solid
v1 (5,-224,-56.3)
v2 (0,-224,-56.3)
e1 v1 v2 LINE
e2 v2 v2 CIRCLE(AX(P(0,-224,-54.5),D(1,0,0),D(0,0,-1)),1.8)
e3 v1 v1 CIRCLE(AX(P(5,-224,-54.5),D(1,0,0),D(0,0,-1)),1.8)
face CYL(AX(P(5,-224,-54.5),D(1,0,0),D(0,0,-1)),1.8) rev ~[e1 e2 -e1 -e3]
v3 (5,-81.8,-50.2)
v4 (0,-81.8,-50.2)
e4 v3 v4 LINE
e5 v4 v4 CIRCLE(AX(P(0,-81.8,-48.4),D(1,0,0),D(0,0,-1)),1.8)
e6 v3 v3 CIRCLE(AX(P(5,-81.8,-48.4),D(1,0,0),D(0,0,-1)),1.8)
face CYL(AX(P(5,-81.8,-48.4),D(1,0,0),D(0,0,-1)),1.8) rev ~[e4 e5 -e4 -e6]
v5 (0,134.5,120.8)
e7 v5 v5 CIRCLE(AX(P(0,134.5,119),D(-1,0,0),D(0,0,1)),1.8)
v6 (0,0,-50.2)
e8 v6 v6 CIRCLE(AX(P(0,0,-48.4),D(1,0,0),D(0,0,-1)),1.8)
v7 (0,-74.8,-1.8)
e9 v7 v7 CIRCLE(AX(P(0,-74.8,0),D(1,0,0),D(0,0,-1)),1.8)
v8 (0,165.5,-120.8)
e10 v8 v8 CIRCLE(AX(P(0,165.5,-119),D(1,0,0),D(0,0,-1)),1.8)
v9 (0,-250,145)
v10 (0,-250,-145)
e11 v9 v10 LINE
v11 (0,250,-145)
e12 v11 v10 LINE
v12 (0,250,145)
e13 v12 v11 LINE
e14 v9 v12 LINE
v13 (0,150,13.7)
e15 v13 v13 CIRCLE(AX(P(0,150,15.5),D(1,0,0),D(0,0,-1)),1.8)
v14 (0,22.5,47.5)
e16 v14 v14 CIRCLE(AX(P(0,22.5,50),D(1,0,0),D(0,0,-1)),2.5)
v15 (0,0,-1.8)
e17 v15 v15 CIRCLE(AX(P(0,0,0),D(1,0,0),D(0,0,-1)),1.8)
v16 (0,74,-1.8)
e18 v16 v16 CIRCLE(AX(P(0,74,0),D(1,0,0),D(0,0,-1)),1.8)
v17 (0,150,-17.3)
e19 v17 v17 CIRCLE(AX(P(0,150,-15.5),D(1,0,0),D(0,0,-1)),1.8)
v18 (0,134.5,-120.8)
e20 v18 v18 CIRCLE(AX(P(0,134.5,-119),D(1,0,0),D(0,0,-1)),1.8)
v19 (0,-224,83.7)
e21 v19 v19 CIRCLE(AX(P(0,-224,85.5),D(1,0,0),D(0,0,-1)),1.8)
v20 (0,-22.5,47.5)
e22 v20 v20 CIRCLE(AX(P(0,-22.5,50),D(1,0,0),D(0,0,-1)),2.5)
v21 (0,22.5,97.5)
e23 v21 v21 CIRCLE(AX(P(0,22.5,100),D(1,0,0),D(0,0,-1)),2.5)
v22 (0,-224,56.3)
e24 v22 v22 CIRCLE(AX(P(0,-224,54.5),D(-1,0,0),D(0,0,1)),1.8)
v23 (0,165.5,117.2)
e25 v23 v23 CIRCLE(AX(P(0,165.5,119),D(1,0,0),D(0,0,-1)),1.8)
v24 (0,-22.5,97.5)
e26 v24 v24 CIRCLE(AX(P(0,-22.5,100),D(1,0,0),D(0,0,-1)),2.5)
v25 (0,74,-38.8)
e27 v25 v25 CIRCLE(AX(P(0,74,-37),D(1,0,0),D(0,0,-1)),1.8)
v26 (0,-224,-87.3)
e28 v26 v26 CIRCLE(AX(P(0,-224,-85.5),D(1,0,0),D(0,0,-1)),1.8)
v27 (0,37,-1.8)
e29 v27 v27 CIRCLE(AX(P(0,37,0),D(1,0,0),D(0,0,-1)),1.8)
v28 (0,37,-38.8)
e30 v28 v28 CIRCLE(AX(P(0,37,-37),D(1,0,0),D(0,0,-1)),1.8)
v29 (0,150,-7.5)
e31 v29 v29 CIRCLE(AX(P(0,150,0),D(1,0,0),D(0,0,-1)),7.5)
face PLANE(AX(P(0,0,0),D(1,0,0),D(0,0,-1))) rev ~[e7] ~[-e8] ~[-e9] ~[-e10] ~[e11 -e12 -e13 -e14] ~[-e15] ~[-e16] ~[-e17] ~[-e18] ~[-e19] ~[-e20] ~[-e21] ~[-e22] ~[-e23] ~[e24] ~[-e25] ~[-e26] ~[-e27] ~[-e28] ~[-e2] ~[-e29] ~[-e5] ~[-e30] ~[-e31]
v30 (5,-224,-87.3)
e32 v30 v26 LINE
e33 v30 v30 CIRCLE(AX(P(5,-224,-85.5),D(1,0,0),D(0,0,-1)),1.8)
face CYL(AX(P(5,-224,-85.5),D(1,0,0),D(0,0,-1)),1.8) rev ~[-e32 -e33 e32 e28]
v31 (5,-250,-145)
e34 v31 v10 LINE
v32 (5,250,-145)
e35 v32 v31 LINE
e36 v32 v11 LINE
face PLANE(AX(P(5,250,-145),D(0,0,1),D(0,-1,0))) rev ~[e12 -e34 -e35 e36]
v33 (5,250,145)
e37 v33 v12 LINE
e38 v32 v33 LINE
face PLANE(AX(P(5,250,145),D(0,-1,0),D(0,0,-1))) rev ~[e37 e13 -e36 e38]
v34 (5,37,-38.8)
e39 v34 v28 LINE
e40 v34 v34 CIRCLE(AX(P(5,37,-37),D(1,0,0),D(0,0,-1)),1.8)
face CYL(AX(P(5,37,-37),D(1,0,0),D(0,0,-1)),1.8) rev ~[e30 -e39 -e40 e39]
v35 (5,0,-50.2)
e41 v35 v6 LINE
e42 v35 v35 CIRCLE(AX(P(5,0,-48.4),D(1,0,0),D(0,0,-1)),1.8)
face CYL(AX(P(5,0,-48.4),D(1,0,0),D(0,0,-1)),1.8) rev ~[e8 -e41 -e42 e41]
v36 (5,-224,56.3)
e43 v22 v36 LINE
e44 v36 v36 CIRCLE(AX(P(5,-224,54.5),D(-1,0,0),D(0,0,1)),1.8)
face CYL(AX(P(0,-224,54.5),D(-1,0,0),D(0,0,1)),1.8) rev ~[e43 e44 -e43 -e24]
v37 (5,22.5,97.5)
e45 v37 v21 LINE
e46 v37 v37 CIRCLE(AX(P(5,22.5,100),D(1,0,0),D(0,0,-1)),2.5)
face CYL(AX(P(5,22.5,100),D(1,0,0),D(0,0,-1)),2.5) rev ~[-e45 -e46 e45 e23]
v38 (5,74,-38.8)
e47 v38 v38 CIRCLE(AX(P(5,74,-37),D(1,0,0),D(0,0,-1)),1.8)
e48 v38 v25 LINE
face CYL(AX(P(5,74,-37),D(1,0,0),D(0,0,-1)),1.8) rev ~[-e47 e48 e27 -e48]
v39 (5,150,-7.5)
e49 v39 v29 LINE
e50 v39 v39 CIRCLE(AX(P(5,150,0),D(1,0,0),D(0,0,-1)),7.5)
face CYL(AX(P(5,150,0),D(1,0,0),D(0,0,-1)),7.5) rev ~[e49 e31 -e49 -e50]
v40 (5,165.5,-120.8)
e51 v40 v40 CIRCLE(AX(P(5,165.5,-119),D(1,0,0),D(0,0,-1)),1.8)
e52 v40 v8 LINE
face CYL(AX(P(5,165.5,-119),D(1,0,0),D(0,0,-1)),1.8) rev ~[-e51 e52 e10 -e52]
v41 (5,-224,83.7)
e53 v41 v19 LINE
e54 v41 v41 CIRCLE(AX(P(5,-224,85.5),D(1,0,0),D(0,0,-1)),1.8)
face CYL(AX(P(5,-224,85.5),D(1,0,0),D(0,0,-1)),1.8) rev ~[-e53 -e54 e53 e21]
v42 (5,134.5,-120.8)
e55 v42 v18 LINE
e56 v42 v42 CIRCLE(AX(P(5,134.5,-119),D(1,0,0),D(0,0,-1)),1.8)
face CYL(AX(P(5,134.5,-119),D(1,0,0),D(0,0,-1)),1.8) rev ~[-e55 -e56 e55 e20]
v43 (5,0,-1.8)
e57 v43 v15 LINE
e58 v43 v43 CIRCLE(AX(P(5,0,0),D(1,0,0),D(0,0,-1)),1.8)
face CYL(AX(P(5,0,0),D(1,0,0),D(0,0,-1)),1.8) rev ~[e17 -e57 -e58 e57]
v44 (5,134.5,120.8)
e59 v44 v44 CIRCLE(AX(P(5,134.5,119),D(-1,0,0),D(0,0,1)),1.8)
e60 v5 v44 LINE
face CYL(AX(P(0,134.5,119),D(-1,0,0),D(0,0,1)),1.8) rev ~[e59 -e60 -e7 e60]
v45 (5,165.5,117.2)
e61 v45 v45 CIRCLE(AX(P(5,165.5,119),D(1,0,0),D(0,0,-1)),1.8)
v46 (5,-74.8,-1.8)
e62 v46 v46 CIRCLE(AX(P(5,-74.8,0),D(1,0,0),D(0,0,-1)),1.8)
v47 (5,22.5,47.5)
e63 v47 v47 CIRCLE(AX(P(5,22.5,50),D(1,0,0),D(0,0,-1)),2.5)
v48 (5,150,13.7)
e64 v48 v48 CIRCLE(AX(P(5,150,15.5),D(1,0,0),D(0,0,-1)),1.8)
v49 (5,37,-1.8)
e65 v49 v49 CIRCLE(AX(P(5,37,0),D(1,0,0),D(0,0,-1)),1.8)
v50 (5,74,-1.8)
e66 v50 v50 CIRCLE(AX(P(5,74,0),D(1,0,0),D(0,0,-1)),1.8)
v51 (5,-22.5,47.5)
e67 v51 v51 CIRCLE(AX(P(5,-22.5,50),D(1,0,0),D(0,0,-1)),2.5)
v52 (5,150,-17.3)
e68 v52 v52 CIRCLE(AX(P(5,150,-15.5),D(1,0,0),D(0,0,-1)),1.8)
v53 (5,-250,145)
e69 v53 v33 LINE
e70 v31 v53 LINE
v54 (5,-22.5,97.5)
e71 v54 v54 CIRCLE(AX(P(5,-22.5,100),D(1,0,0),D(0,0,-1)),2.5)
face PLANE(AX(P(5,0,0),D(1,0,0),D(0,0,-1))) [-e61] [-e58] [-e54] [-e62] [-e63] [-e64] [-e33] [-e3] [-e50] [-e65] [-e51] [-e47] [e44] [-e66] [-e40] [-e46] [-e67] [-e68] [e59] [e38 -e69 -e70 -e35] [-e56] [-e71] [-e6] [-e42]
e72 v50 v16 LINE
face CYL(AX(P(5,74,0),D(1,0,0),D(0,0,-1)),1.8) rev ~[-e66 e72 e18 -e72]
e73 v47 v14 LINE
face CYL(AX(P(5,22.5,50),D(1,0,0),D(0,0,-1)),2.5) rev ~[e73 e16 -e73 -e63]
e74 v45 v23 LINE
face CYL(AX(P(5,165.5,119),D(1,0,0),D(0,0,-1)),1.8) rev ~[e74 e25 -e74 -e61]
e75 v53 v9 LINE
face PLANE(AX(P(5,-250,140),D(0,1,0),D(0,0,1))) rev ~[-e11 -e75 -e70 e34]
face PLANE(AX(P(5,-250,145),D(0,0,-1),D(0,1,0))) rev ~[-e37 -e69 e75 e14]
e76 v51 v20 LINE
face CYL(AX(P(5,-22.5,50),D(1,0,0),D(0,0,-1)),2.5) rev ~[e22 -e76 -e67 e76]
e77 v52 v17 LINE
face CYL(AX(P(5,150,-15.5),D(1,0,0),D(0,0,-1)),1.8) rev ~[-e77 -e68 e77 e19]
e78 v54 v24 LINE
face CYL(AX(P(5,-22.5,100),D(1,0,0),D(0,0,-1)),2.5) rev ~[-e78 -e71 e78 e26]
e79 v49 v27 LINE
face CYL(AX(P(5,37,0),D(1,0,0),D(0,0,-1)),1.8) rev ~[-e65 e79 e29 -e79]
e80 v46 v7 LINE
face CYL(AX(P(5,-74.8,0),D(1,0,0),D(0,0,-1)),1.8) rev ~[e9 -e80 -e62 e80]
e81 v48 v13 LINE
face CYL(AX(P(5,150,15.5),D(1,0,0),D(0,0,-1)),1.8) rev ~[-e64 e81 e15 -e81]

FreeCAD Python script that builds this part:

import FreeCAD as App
import Part
import Sketcher

V = App.Vector
Q = App.Units.Quantity

doc = App.newDocument("Part")
params = doc.addObject("Spreadsheet::Sheet", "Params")
for row, (alias, value) in enumerate([
    ("sketch1_width", "500 mm"),
    ("sketch1_height", "290 mm"),
    ("pad1_length", "5 mm"),
    ("sketch2_diameter", "3.6 mm"),
    ("sketch3_diameter", "3.6 mm"),
    ("sketch4_diameter", "3.6 mm"),
    ("sketch5_diameter", "3.6 mm"),
    ("sketch6_diameter", "3.6 mm"),
    ("sketch7_diameter", "3.6 mm"),
    ("sketch8_diameter", "3.6 mm"),
    ("sketch9_diameter", "3.6 mm"),
    ("sketch10_width", "500 mm"),
    ("sketch10_height", "5 mm"),
    ("sketch11_width", "500 mm"),
    ("sketch11_height", "5 mm"),
    ("pad2_length", "5 mm"),
    ("sketch12_diameter", "3.6 mm"),
    ("sketch13_diameter", "3.6 mm"),
    ("sketch14_diameter", "3.6 mm"),
    ("sketch15_diameter", "3.6 mm"),
    ("sketch16_diameter", "3.6 mm"),
    ("sketch17_diameter", "3.6 mm"),
    ("sketch18_diameter", "3.6 mm"),
    ("sketch19_diameter", "3.6 mm"),
    ("sketch20_diameter", "5 mm"),
    ("sketch21_diameter", "5 mm"),
    ("sketch22_diameter", "5 mm"),
    ("sketch23_diameter", "5 mm"),
    ("sketch24_diameter", "3.6 mm"),
    ("sketch25_diameter", "3.6 mm"),
    ("sketch26_diameter", "15 mm"),
], start=1):
    params.set(f"A{row}", alias)
    params.set(f"B{row}", "=" + value)
    params.setAlias(f"B{row}", alias)

body = doc.addObject("PartDesign::Body", "Body")

# Sketch on YZ plane
sketch1 = doc.addObject("Sketcher::SketchObject", "Sketch")
body.addObject(sketch1)
sketch1.AttachmentSupport = (doc.YZ_Plane, [""])
sketch1.MapMode = "FlatFace"
sketch1.addGeometry([
    Part.LineSegment(V(250, -150, 0), V(250, 140, 0)),
    Part.LineSegment(V(250, 140, 0), V(-250, 140, 0)),
    Part.LineSegment(V(-250, 140, 0), V(-250, -150, 0)),
    Part.LineSegment(V(-250, -150, 0), V(250, -150, 0)),
], False)
sketch1.addConstraint([
    Sketcher.Constraint("Coincident", 0, 2, 1, 1),
    Sketcher.Constraint("Coincident", 1, 2, 2, 1),
    Sketcher.Constraint("Coincident", 2, 2, 3, 1),
    Sketcher.Constraint("Coincident", 3, 2, 0, 1),
    Sketcher.Constraint("Vertical", 0),
    Sketcher.Constraint("Horizontal", 1),
    Sketcher.Constraint("Vertical", 2),
    Sketcher.Constraint("Horizontal", 3),
    Sketcher.Constraint("DistanceX", 1, 2, 1, 1, Q("500 mm")),
    Sketcher.Constraint("DistanceY", 0, 1, 0, 2, Q("290 mm")),
    Sketcher.Constraint("DistanceX", -1, 1, 0, 2, Q("250 mm")),
    Sketcher.Constraint("DistanceY", -1, 1, 0, 2, Q("140 mm")),
])
sketch1.setExpression("Constraints[8]", "Params.sketch1_width")
sketch1.setExpression("Constraints[9]", "Params.sketch1_height")
pad1 = doc.addObject("PartDesign::Pad", "Pad")
body.addObject(pad1)
pad1.Profile = sketch1
pad1.setExpression("Length", "Params.pad1_length")

# Sketch on YZ plane
sketch2 = doc.addObject("Sketcher::SketchObject", "Sketch001")
body.addObject(sketch2)
sketch2.AttachmentSupport = (doc.YZ_Plane, [""])
sketch2.MapMode = "FlatFace"
sketch2.AttachmentOffset = App.Placement(V(0, 0, 5), App.Rotation())
sketch2.addGeometry(Part.Circle(V(-224, -85.5, 0), V(0, 0, 1), 1.8), False)
sketch2.addConstraint([
    Sketcher.Constraint("Diameter", 0, Q("3.6 mm")),
    Sketcher.Constraint("DistanceX", 0, 3, -1, 1, Q("224 mm")),
    Sketcher.Constraint("DistanceY", 0, 3, -1, 1, Q("85.5 mm")),
])
sketch2.setExpression("Constraints[0]", "Params.sketch2_diameter")
pocket1 = doc.addObject("PartDesign::Pocket", "Pocket")
body.addObject(pocket1)
pocket1.Profile = sketch2
pocket1.Type = "ThroughAll"

# Sketch on YZ plane
sketch3 = doc.addObject("Sketcher::SketchObject", "Sketch002")
body.addObject(sketch3)
sketch3.AttachmentSupport = (doc.YZ_Plane, [""])
sketch3.MapMode = "FlatFace"
sketch3.AttachmentOffset = App.Placement(V(0, 0, 5), App.Rotation())
sketch3.addGeometry(Part.Circle(V(-224, 85.5, 0), V(0, 0, 1), 1.8), False)
sketch3.addConstraint([
    Sketcher.Constraint("Diameter", 0, Q("3.6 mm")),
    Sketcher.Constraint("DistanceX", 0, 3, -1, 1, Q("224 mm")),
    Sketcher.Constraint("DistanceY", -1, 1, 0, 3, Q("85.5 mm")),
])
sketch3.setExpression("Constraints[0]", "Params.sketch3_diameter")
pocket2 = doc.addObject("PartDesign::Pocket", "Pocket001")
body.addObject(pocket2)
pocket2.Profile = sketch3
pocket2.Type = "ThroughAll"

# Sketch on YZ plane
sketch4 = doc.addObject("Sketcher::SketchObject", "Sketch003")
body.addObject(sketch4)
sketch4.AttachmentSupport = (doc.YZ_Plane, [""])
sketch4.MapMode = "FlatFace"
sketch4.addGeometry(Part.Circle(V(-224, 54.5, 0), V(0, 0, 1), 1.8), False)
sketch4.addConstraint([
    Sketcher.Constraint("Diameter", 0, Q("3.6 mm")),
    Sketcher.Constraint("DistanceX", 0, 3, -1, 1, Q("224 mm")),
    Sketcher.Constraint("DistanceY", -1, 1, 0, 3, Q("54.5 mm")),
])
sketch4.setExpression("Constraints[0]", "Params.sketch4_diameter")
pocket3 = doc.addObject("PartDesign::Pocket", "Pocket002")
body.addObject(pocket3)
pocket3.Profile = sketch4
pocket3.Type = "ThroughAll"
pocket3.Reversed = True

# Sketch on YZ plane
sketch5 = doc.addObject("Sketcher::SketchObject", "Sketch004")
body.addObject(sketch5)
sketch5.AttachmentSupport = (doc.YZ_Plane, [""])
sketch5.MapMode = "FlatFace"
sketch5.AttachmentOffset = App.Placement(V(0, 0, 5), App.Rotation())
sketch5.addGeometry(Part.Circle(V(-224, -54.5, 0), V(0, 0, 1), 1.8), False)
sketch5.addConstraint([
    Sketcher.Constraint("Diameter", 0, Q("3.6 mm")),
    Sketcher.Constraint("DistanceX", 0, 3, -1, 1, Q("224 mm")),
    Sketcher.Constraint("DistanceY", 0, 3, -1, 1, Q("54.5 mm")),
])
sketch5.setExpression("Constraints[0]", "Params.sketch5_diameter")
pocket4 = doc.addObject("PartDesign::Pocket", "Pocket003")
body.addObject(pocket4)
pocket4.Profile = sketch5
pocket4.Type = "ThroughAll"

# Sketch on YZ plane
sketch6 = doc.addObject("Sketcher::SketchObject", "Sketch005")
body.addObject(sketch6)
sketch6.AttachmentSupport = (doc.YZ_Plane, [""])
sketch6.MapMode = "FlatFace"
sketch6.AttachmentOffset = App.Placement(V(0, 0, 5), App.Rotation())
sketch6.addGeometry(Part.Circle(V(165.5, 119, 0), V(0, 0, 1), 1.8), False)
sketch6.addConstraint([
    Sketcher.Constraint("Diameter", 0, Q("3.6 mm")),
    Sketcher.Constraint("DistanceY", -1, 1, 0, 3, Q("119 mm")),
    Sketcher.Constraint("DistanceX", -1, 1, 0, 3, Q("165.5 mm")),
])
sketch6.setExpression("Constraints[0]", "Params.sketch6_diameter")
pocket5 = doc.addObject("PartDesign::Pocket", "Pocket004")
body.addObject(pocket5)
pocket5.Profile = sketch6
pocket5.Type = "ThroughAll"

# Sketch on YZ plane
sketch7 = doc.addObject("Sketcher::SketchObject", "Sketch006")
body.addObject(sketch7)
sketch7.AttachmentSupport = (doc.YZ_Plane, [""])
sketch7.MapMode = "FlatFace"
sketch7.addGeometry(Part.Circle(V(134.5, 119, 0), V(0, 0, 1), 1.8), False)
sketch7.addConstraint([
    Sketcher.Constraint("Diameter", 0, Q("3.6 mm")),
    Sketcher.Constraint("DistanceY", -1, 1, 0, 3, Q("119 mm")),
    Sketcher.Constraint("DistanceX", -1, 1, 0, 3, Q("134.5 mm")),
])
sketch7.setExpression("Constraints[0]", "Params.sketch7_diameter")
pocket6 = doc.addObject("PartDesign::Pocket", "Pocket005")
body.addObject(pocket6)
pocket6.Profile = sketch7
pocket6.Type = "ThroughAll"
pocket6.Reversed = True

# Sketch on YZ plane
sketch8 = doc.addObject("Sketcher::SketchObject", "Sketch007")
body.addObject(sketch8)
sketch8.AttachmentSupport = (doc.YZ_Plane, [""])
sketch8.MapMode = "FlatFace"
sketch8.AttachmentOffset = App.Placement(V(0, 0, 5), App.Rotation())
sketch8.addGeometry(Part.Circle(V(134.5, -119, 0), V(0, 0, 1), 1.8), False)
sketch8.addConstraint([
    Sketcher.Constraint("Diameter", 0, Q("3.6 mm")),
    Sketcher.Constraint("DistanceY", 0, 3, -1, 1, Q("119 mm")),
    Sketcher.Constraint("DistanceX", -1, 1, 0, 3, Q("134.5 mm")),
])
sketch8.setExpression("Constraints[0]", "Params.sketch8_diameter")
pocket7 = doc.addObject("PartDesign::Pocket", "Pocket006")
body.addObject(pocket7)
pocket7.Profile = sketch8
pocket7.Type = "ThroughAll"

# Sketch on YZ plane
sketch9 = doc.addObject("Sketcher::SketchObject", "Sketch008")
body.addObject(sketch9)
sketch9.AttachmentSupport = (doc.YZ_Plane, [""])
sketch9.MapMode = "FlatFace"
sketch9.AttachmentOffset = App.Placement(V(0, 0, 5), App.Rotation())
sketch9.addGeometry(Part.Circle(V(165.5, -119, 0), V(0, 0, 1), 1.8), False)
sketch9.addConstraint([
    Sketcher.Constraint("Diameter", 0, Q("3.6 mm")),
    Sketcher.Constraint("DistanceY", 0, 3, -1, 1, Q("119 mm")),
    Sketcher.Constraint("DistanceX", -1, 1, 0, 3, Q("165.5 mm")),
])
sketch9.setExpression("Constraints[0]", "Params.sketch9_diameter")
pocket8 = doc.addObject("PartDesign::Pocket", "Pocket007")
body.addObject(pocket8)
pocket8.Profile = sketch9
pocket8.Type = "ThroughAll"

# Sketch on YZ plane
sketch10 = doc.addObject("Sketcher::SketchObject", "Sketch009")
body.addObject(sketch10)
sketch10.AttachmentSupport = (doc.YZ_Plane, [""])
sketch10.MapMode = "FlatFace"
sketch10.AttachmentOffset = App.Placement(V(0, 0, 5), App.Rotation())
sketch10.addGeometry([
    Part.LineSegment(V(250, -145, 0), V(-250, -145, 0)),
    Part.LineSegment(V(-250, -145, 0), V(-250, -150, 0)),
    Part.LineSegment(V(-250, -150, 0), V(250, -150, 0)),
    Part.LineSegment(V(250, -150, 0), V(250, -145, 0)),
], False)
sketch10.addConstraint([
    Sketcher.Constraint("Coincident", 0, 2, 1, 1),
    Sketcher.Constraint("Coincident", 1, 2, 2, 1),
    Sketcher.Constraint("Coincident", 2, 2, 3, 1),
    Sketcher.Constraint("Coincident", 3, 2, 0, 1),
    Sketcher.Constraint("Horizontal", 0),
    Sketcher.Constraint("Vertical", 1),
    Sketcher.Constraint("Horizontal", 2),
    Sketcher.Constraint("Vertical", 3),
    Sketcher.Constraint("DistanceX", 0, 2, 0, 1, Q("500 mm")),
    Sketcher.Constraint("DistanceY", 1, 2, 1, 1, Q("5 mm")),
    Sketcher.Constraint("DistanceX", 0, 2, -1, 1, Q("250 mm")),
    Sketcher.Constraint("DistanceY", 0, 2, -1, 1, Q("145 mm")),
])
sketch10.setExpression("Constraints[8]", "Params.sketch10_width")
sketch10.setExpression("Constraints[9]", "Params.sketch10_height")
pocket9 = doc.addObject("PartDesign::Pocket", "Pocket008")
body.addObject(pocket9)
pocket9.Profile = sketch10
pocket9.Type = "ThroughAll"

# Sketch on YZ plane
sketch11 = doc.addObject("Sketcher::SketchObject", "Sketch010")
body.addObject(sketch11)
sketch11.AttachmentSupport = (doc.YZ_Plane, [""])
sketch11.MapMode = "FlatFace"
sketch11.AttachmentOffset = App.Placement(V(0, 0, 5), App.Rotation())
sketch11.addGeometry([
    Part.LineSegment(V(-250, 145, 0), V(-250, 140, 0)),
    Part.LineSegment(V(-250, 140, 0), V(250, 140, 0)),
    Part.LineSegment(V(250, 140, 0), V(250, 145, 0)),
    Part.LineSegment(V(250, 145, 0), V(-250, 145, 0)),
], False)
sketch11.addConstraint([
    Sketcher.Constraint("Coincident", 0, 2, 1, 1),
    Sketcher.Constraint("Coincident", 1, 2, 2, 1),
    Sketcher.Constraint("Coincident", 2, 2, 3, 1),
    Sketcher.Constraint("Coincident", 3, 2, 0, 1),
    Sketcher.Constraint("Vertical", 0),
    Sketcher.Constraint("Horizontal", 1),
    Sketcher.Constraint("Vertical", 2),
    Sketcher.Constraint("Horizontal", 3),
    Sketcher.Constraint("DistanceX", 1, 1, 1, 2, Q("500 mm")),
    Sketcher.Constraint("DistanceY", 0, 2, 0, 1, Q("5 mm")),
    Sketcher.Constraint("DistanceX", 0, 2, -1, 1, Q("250 mm")),
    Sketcher.Constraint("DistanceY", -1, 1, 0, 2, Q("140 mm")),
])
sketch11.setExpression("Constraints[8]", "Params.sketch11_width")
sketch11.setExpression("Constraints[9]", "Params.sketch11_height")
pad2 = doc.addObject("PartDesign::Pad", "Pad001")
body.addObject(pad2)
pad2.Profile = sketch11
pad2.setExpression("Length", "Params.pad2_length")
pad2.Reversed = True

# Sketch on YZ plane
sketch12 = doc.addObject("Sketcher::SketchObject", "Sketch011")
body.addObject(sketch12)
sketch12.AttachmentSupport = (doc.YZ_Plane, [""])
sketch12.MapMode = "FlatFace"
sketch12.AttachmentOffset = App.Placement(V(0, 0, 5), App.Rotation())
sketch12.addGeometry(Part.Circle(V(0, 0, 0), V(0, 0, 1), 1.8), False)
sketch12.addConstraint([
    Sketcher.Constraint("Coincident", 0, 3, -1, 1),
    Sketcher.Constraint("Diameter", 0, Q("3.6 mm")),
])
sketch12.setExpression("Constraints[1]", "Params.sketch12_diameter")
pocket10 = doc.addObject("PartDesign::Pocket", "Pocket009")
body.addObject(pocket10)
pocket10.Profile = sketch12
pocket10.Type = "ThroughAll"

# Sketch on YZ plane
sketch13 = doc.addObject("Sketcher::SketchObject", "Sketch012")
body.addObject(sketch13)
sketch13.AttachmentSupport = (doc.YZ_Plane, [""])
sketch13.MapMode = "FlatFace"
sketch13.AttachmentOffset = App.Placement(V(0, 0, 5), App.Rotation())
sketch13.addGeometry(Part.Circle(V(0, -48.4, 0), V(0, 0, 1), 1.8), False)
sketch13.addConstraint([
    Sketcher.Constraint("PointOnObject", 0, 3, -2),
    Sketcher.Constraint("Diameter", 0, Q("3.6 mm")),
    Sketcher.Constraint("DistanceY", 0, 3, -1, 1, Q("48.4 mm")),
])
sketch13.setExpression("Constraints[1]", "Params.sketch13_diameter")
pocket11 = doc.addObject("PartDesign::Pocket", "Pocket010")
body.addObject(pocket11)
pocket11.Profile = sketch13
pocket11.Type = "ThroughAll"

# Sketch on YZ plane
sketch14 = doc.addObject("Sketcher::SketchObject", "Sketch013")
body.addObject(sketch14)
sketch14.AttachmentSupport = (doc.YZ_Plane, [""])
sketch14.MapMode = "FlatFace"
sketch14.AttachmentOffset = App.Placement(V(0, 0, 5), App.Rotation())
sketch14.addGeometry(Part.Circle(V(-74.8, 0, 0), V(0, 0, 1), 1.8), False)
sketch14.addConstraint([
    Sketcher.Constraint("PointOnObject", 0, 3, -1),
    Sketcher.Constraint("Diameter", 0, Q("3.6 mm")),
    Sketcher.Constraint("DistanceX", 0, 3, -1, 1, Q("74.8 mm")),
])
sketch14.setExpression("Constraints[1]", "Params.sketch14_diameter")
pocket12 = doc.addObject("PartDesign::Pocket", "Pocket011")
body.addObject(pocket12)
pocket12.Profile = sketch14
pocket12.Type = "ThroughAll"

# Sketch on YZ plane
sketch15 = doc.addObject("Sketcher::SketchObject", "Sketch014")
body.addObject(sketch15)
sketch15.AttachmentSupport = (doc.YZ_Plane, [""])
sketch15.MapMode = "FlatFace"
sketch15.AttachmentOffset = App.Placement(V(0, 0, 5), App.Rotation())
sketch15.addGeometry(Part.Circle(V(-81.8, -48.4, 0), V(0, 0, 1), 1.8), False)
sketch15.addConstraint([
    Sketcher.Constraint("Diameter", 0, Q("3.6 mm")),
    Sketcher.Constraint("DistanceX", 0, 3, -1, 1, Q("81.8 mm")),
    Sketcher.Constraint("DistanceY", 0, 3, -1, 1, Q("48.4 mm")),
])
sketch15.setExpression("Constraints[0]", "Params.sketch15_diameter")
pocket13 = doc.addObject("PartDesign::Pocket", "Pocket012")
body.addObject(pocket13)
pocket13.Profile = sketch15
pocket13.Type = "ThroughAll"

# Sketch on YZ plane
sketch16 = doc.addObject("Sketcher::SketchObject", "Sketch015")
body.addObject(sketch16)
sketch16.AttachmentSupport = (doc.YZ_Plane, [""])
sketch16.MapMode = "FlatFace"
sketch16.AttachmentOffset = App.Placement(V(0, 0, 5), App.Rotation())
sketch16.addGeometry(Part.Circle(V(37, 0, 0), V(0, 0, 1), 1.8), False)
sketch16.addConstraint([
    Sketcher.Constraint("PointOnObject", 0, 3, -1),
    Sketcher.Constraint("Diameter", 0, Q("3.6 mm")),
    Sketcher.Constraint("DistanceX", -1, 1, 0, 3, Q("37 mm")),
])
sketch16.setExpression("Constraints[1]", "Params.sketch16_diameter")
pocket14 = doc.addObject("PartDesign::Pocket", "Pocket013")
body.addObject(pocket14)
pocket14.Profile = sketch16
pocket14.Type = "ThroughAll"

# Sketch on YZ plane
sketch17 = doc.addObject("Sketcher::SketchObject", "Sketch016")
body.addObject(sketch17)
sketch17.AttachmentSupport = (doc.YZ_Plane, [""])
sketch17.MapMode = "FlatFace"
sketch17.AttachmentOffset = App.Placement(V(0, 0, 5), App.Rotation())
sketch17.addGeometry(Part.Circle(V(74, -37, 0), V(0, 0, 1), 1.8), False)
sketch17.addConstraint([
    Sketcher.Constraint("Diameter", 0, Q("3.6 mm")),
    Sketcher.Constraint("DistanceX", -1, 1, 0, 3, Q("74 mm")),
    Sketcher.Constraint("DistanceY", 0, 3, -1, 1, Q("37 mm")),
])
sketch17.setExpression("Constraints[0]", "Params.sketch17_diameter")
pocket15 = doc.addObject("PartDesign::Pocket", "Pocket014")
body.addObject(pocket15)
pocket15.Profile = sketch17
pocket15.Type = "ThroughAll"

# Sketch on YZ plane
sketch18 = doc.addObject("Sketcher::SketchObject", "Sketch017")
body.addObject(sketch18)
sketch18.AttachmentSupport = (doc.YZ_Plane, [""])
sketch18.MapMode = "FlatFace"
sketch18.AttachmentOffset = App.Placement(V(0, 0, 5), App.Rotation())
sketch18.addGeometry(Part.Circle(V(74, 0, 0), V(0, 0, 1), 1.8), False)
sketch18.addConstraint([
    Sketcher.Constraint("PointOnObject", 0, 3, -1),
    Sketcher.Constraint("Diameter", 0, Q("3.6 mm")),
    Sketcher.Constraint("DistanceX", -1, 1, 0, 3, Q("74 mm")),
])
sketch18.setExpression("Constraints[1]", "Params.sketch18_diameter")
pocket16 = doc.addObject("PartDesign::Pocket", "Pocket015")
body.addObject(pocket16)
pocket16.Profile = sketch18
pocket16.Type = "ThroughAll"

# Sketch on YZ plane
sketch19 = doc.addObject("Sketcher::SketchObject", "Sketch018")
body.addObject(sketch19)
sketch19.AttachmentSupport = (doc.YZ_Plane, [""])
sketch19.MapMode = "FlatFace"
sketch19.AttachmentOffset = App.Placement(V(0, 0, 5), App.Rotation())
sketch19.addGeometry(Part.Circle(V(37, -37, 0), V(0, 0, 1), 1.8), False)
sketch19.addConstraint([
    Sketcher.Constraint("Diameter", 0, Q("3.6 mm")),
    Sketcher.Constraint("DistanceX", -1, 1, 0, 3, Q("37 mm")),
    Sketcher.Constraint("DistanceY", 0, 3, -1, 1, Q("37 mm")),
])
sketch19.setExpression("Constraints[0]", "Params.sketch19_diameter")
pocket17 = doc.addObject("PartDesign::Pocket", "Pocket016")
body.addObject(pocket17)
pocket17.Profile = sketch19
pocket17.Type = "ThroughAll"

# Sketch on YZ plane
sketch20 = doc.addObject("Sketcher::SketchObject", "Sketch019")
body.addObject(sketch20)
sketch20.AttachmentSupport = (doc.YZ_Plane, [""])
sketch20.MapMode = "FlatFace"
sketch20.AttachmentOffset = App.Placement(V(0, 0, 5), App.Rotation())
sketch20.addGeometry(Part.Circle(V(-22.5, 50, 0), V(0, 0, 1), 2.5), False)
sketch20.addConstraint([
    Sketcher.Constraint("Diameter", 0, Q("5 mm")),
    Sketcher.Constraint("DistanceY", -1, 1, 0, 3, Q("50 mm")),
    Sketcher.Constraint("DistanceX", 0, 3, -1, 1, Q("22.5 mm")),
])
sketch20.setExpression("Constraints[0]", "Params.sketch20_diameter")
pocket18 = doc.addObject("PartDesign::Pocket", "Pocket017")
body.addObject(pocket18)
pocket18.Profile = sketch20
pocket18.Type = "ThroughAll"

# Sketch on YZ plane
sketch21 = doc.addObject("Sketcher::SketchObject", "Sketch020")
body.addObject(sketch21)
sketch21.AttachmentSupport = (doc.YZ_Plane, [""])
sketch21.MapMode = "FlatFace"
sketch21.AttachmentOffset = App.Placement(V(0, 0, 5), App.Rotation())
sketch21.addGeometry(Part.Circle(V(22.5, 50, 0), V(0, 0, 1), 2.5), False)
sketch21.addConstraint([
    Sketcher.Constraint("Diameter", 0, Q("5 mm")),
    Sketcher.Constraint("DistanceY", -1, 1, 0, 3, Q("50 mm")),
    Sketcher.Constraint("DistanceX", -1, 1, 0, 3, Q("22.5 mm")),
])
sketch21.setExpression("Constraints[0]", "Params.sketch21_diameter")
pocket19 = doc.addObject("PartDesign::Pocket", "Pocket018")
body.addObject(pocket19)
pocket19.Profile = sketch21
pocket19.Type = "ThroughAll"

# Sketch on YZ plane
sketch22 = doc.addObject("Sketcher::SketchObject", "Sketch021")
body.addObject(sketch22)
sketch22.AttachmentSupport = (doc.YZ_Plane, [""])
sketch22.MapMode = "FlatFace"
sketch22.AttachmentOffset = App.Placement(V(0, 0, 5), App.Rotation())
sketch22.addGeometry(Part.Circle(V(-22.5, 100, 0), V(0, 0, 1), 2.5), False)
sketch22.addConstraint([
    Sketcher.Constraint("Diameter", 0, Q("5 mm")),
    Sketcher.Constraint("DistanceY", -1, 1, 0, 3, Q("100 mm")),
    Sketcher.Constraint("DistanceX", 0, 3, -1, 1, Q("22.5 mm")),
])
sketch22.setExpression("Constraints[0]", "Params.sketch22_diameter")
pocket20 = doc.addObject("PartDesign::Pocket", "Pocket019")
body.addObject(pocket20)
pocket20.Profile = sketch22
pocket20.Type = "ThroughAll"

# Sketch on YZ plane
sketch23 = doc.addObject("Sketcher::SketchObject", "Sketch022")
body.addObject(sketch23)
sketch23.AttachmentSupport = (doc.YZ_Plane, [""])
sketch23.MapMode = "FlatFace"
sketch23.AttachmentOffset = App.Placement(V(0, 0, 5), App.Rotation())
sketch23.addGeometry(Part.Circle(V(22.5, 100, 0), V(0, 0, 1), 2.5), False)
sketch23.addConstraint([
    Sketcher.Constraint("Diameter", 0, Q("5 mm")),
    Sketcher.Constraint("DistanceY", -1, 1, 0, 3, Q("100 mm")),
    Sketcher.Constraint("DistanceX", -1, 1, 0, 3, Q("22.5 mm")),
])
sketch23.setExpression("Constraints[0]", "Params.sketch23_diameter")
pocket21 = doc.addObject("PartDesign::Pocket", "Pocket020")
body.addObject(pocket21)
pocket21.Profile = sketch23
pocket21.Type = "ThroughAll"

# Sketch on YZ plane
sketch24 = doc.addObject("Sketcher::SketchObject", "Sketch023")
body.addObject(sketch24)
sketch24.AttachmentSupport = (doc.YZ_Plane, [""])
sketch24.MapMode = "FlatFace"
sketch24.AttachmentOffset = App.Placement(V(0, 0, 5), App.Rotation())
sketch24.addGeometry(Part.Circle(V(150, -15.5, 0), V(0, 0, 1), 1.8), False)
sketch24.addConstraint([
    Sketcher.Constraint("Diameter", 0, Q("3.6 mm")),
    Sketcher.Constraint("DistanceX", -1, 1, 0, 3, Q("150 mm")),
    Sketcher.Constraint("DistanceY", 0, 3, -1, 1, Q("15.5 mm")),
])
sketch24.setExpression("Constraints[0]", "Params.sketch24_diameter")
pocket22 = doc.addObject("PartDesign::Pocket", "Pocket021")
body.addObject(pocket22)
pocket22.Profile = sketch24
pocket22.Type = "ThroughAll"

# Sketch on YZ plane
sketch25 = doc.addObject("Sketcher::SketchObject", "Sketch024")
body.addObject(sketch25)
sketch25.AttachmentSupport = (doc.YZ_Plane, [""])
sketch25.MapMode = "FlatFace"
sketch25.AttachmentOffset = App.Placement(V(0, 0, 5), App.Rotation())
sketch25.addGeometry(Part.Circle(V(150, 15.5, 0), V(0, 0, 1), 1.8), False)
sketch25.addConstraint([
    Sketcher.Constraint("Diameter", 0, Q("3.6 mm")),
    Sketcher.Constraint("DistanceX", -1, 1, 0, 3, Q("150 mm")),
    Sketcher.Constraint("DistanceY", -1, 1, 0, 3, Q("15.5 mm")),
])
sketch25.setExpression("Constraints[0]", "Params.sketch25_diameter")
pocket23 = doc.addObject("PartDesign::Pocket", "Pocket022")
body.addObject(pocket23)
pocket23.Profile = sketch25
pocket23.Type = "ThroughAll"

# Sketch on YZ plane
sketch26 = doc.addObject("Sketcher::SketchObject", "Sketch025")
body.addObject(sketch26)
sketch26.AttachmentSupport = (doc.YZ_Plane, [""])
sketch26.MapMode = "FlatFace"
sketch26.AttachmentOffset = App.Placement(V(0, 0, 5), App.Rotation())
sketch26.addGeometry(Part.Circle(V(150, 0, 0), V(0, 0, 1), 8), False)
sketch26.addConstraint([
    Sketcher.Constraint("PointOnObject", 0, 3, -1),
    Sketcher.Constraint("Diameter", 0, Q("15 mm")),
    Sketcher.Constraint("DistanceX", -1, 1, 0, 3, Q("150 mm")),
])
sketch26.setExpression("Constraints[1]", "Params.sketch26_diameter")
pocket24 = doc.addObject("PartDesign::Pocket", "Pocket023")
body.addObject(pocket24)
pocket24.Profile = sketch26
pocket24.Type = "ThroughAll"

doc.recompute()
